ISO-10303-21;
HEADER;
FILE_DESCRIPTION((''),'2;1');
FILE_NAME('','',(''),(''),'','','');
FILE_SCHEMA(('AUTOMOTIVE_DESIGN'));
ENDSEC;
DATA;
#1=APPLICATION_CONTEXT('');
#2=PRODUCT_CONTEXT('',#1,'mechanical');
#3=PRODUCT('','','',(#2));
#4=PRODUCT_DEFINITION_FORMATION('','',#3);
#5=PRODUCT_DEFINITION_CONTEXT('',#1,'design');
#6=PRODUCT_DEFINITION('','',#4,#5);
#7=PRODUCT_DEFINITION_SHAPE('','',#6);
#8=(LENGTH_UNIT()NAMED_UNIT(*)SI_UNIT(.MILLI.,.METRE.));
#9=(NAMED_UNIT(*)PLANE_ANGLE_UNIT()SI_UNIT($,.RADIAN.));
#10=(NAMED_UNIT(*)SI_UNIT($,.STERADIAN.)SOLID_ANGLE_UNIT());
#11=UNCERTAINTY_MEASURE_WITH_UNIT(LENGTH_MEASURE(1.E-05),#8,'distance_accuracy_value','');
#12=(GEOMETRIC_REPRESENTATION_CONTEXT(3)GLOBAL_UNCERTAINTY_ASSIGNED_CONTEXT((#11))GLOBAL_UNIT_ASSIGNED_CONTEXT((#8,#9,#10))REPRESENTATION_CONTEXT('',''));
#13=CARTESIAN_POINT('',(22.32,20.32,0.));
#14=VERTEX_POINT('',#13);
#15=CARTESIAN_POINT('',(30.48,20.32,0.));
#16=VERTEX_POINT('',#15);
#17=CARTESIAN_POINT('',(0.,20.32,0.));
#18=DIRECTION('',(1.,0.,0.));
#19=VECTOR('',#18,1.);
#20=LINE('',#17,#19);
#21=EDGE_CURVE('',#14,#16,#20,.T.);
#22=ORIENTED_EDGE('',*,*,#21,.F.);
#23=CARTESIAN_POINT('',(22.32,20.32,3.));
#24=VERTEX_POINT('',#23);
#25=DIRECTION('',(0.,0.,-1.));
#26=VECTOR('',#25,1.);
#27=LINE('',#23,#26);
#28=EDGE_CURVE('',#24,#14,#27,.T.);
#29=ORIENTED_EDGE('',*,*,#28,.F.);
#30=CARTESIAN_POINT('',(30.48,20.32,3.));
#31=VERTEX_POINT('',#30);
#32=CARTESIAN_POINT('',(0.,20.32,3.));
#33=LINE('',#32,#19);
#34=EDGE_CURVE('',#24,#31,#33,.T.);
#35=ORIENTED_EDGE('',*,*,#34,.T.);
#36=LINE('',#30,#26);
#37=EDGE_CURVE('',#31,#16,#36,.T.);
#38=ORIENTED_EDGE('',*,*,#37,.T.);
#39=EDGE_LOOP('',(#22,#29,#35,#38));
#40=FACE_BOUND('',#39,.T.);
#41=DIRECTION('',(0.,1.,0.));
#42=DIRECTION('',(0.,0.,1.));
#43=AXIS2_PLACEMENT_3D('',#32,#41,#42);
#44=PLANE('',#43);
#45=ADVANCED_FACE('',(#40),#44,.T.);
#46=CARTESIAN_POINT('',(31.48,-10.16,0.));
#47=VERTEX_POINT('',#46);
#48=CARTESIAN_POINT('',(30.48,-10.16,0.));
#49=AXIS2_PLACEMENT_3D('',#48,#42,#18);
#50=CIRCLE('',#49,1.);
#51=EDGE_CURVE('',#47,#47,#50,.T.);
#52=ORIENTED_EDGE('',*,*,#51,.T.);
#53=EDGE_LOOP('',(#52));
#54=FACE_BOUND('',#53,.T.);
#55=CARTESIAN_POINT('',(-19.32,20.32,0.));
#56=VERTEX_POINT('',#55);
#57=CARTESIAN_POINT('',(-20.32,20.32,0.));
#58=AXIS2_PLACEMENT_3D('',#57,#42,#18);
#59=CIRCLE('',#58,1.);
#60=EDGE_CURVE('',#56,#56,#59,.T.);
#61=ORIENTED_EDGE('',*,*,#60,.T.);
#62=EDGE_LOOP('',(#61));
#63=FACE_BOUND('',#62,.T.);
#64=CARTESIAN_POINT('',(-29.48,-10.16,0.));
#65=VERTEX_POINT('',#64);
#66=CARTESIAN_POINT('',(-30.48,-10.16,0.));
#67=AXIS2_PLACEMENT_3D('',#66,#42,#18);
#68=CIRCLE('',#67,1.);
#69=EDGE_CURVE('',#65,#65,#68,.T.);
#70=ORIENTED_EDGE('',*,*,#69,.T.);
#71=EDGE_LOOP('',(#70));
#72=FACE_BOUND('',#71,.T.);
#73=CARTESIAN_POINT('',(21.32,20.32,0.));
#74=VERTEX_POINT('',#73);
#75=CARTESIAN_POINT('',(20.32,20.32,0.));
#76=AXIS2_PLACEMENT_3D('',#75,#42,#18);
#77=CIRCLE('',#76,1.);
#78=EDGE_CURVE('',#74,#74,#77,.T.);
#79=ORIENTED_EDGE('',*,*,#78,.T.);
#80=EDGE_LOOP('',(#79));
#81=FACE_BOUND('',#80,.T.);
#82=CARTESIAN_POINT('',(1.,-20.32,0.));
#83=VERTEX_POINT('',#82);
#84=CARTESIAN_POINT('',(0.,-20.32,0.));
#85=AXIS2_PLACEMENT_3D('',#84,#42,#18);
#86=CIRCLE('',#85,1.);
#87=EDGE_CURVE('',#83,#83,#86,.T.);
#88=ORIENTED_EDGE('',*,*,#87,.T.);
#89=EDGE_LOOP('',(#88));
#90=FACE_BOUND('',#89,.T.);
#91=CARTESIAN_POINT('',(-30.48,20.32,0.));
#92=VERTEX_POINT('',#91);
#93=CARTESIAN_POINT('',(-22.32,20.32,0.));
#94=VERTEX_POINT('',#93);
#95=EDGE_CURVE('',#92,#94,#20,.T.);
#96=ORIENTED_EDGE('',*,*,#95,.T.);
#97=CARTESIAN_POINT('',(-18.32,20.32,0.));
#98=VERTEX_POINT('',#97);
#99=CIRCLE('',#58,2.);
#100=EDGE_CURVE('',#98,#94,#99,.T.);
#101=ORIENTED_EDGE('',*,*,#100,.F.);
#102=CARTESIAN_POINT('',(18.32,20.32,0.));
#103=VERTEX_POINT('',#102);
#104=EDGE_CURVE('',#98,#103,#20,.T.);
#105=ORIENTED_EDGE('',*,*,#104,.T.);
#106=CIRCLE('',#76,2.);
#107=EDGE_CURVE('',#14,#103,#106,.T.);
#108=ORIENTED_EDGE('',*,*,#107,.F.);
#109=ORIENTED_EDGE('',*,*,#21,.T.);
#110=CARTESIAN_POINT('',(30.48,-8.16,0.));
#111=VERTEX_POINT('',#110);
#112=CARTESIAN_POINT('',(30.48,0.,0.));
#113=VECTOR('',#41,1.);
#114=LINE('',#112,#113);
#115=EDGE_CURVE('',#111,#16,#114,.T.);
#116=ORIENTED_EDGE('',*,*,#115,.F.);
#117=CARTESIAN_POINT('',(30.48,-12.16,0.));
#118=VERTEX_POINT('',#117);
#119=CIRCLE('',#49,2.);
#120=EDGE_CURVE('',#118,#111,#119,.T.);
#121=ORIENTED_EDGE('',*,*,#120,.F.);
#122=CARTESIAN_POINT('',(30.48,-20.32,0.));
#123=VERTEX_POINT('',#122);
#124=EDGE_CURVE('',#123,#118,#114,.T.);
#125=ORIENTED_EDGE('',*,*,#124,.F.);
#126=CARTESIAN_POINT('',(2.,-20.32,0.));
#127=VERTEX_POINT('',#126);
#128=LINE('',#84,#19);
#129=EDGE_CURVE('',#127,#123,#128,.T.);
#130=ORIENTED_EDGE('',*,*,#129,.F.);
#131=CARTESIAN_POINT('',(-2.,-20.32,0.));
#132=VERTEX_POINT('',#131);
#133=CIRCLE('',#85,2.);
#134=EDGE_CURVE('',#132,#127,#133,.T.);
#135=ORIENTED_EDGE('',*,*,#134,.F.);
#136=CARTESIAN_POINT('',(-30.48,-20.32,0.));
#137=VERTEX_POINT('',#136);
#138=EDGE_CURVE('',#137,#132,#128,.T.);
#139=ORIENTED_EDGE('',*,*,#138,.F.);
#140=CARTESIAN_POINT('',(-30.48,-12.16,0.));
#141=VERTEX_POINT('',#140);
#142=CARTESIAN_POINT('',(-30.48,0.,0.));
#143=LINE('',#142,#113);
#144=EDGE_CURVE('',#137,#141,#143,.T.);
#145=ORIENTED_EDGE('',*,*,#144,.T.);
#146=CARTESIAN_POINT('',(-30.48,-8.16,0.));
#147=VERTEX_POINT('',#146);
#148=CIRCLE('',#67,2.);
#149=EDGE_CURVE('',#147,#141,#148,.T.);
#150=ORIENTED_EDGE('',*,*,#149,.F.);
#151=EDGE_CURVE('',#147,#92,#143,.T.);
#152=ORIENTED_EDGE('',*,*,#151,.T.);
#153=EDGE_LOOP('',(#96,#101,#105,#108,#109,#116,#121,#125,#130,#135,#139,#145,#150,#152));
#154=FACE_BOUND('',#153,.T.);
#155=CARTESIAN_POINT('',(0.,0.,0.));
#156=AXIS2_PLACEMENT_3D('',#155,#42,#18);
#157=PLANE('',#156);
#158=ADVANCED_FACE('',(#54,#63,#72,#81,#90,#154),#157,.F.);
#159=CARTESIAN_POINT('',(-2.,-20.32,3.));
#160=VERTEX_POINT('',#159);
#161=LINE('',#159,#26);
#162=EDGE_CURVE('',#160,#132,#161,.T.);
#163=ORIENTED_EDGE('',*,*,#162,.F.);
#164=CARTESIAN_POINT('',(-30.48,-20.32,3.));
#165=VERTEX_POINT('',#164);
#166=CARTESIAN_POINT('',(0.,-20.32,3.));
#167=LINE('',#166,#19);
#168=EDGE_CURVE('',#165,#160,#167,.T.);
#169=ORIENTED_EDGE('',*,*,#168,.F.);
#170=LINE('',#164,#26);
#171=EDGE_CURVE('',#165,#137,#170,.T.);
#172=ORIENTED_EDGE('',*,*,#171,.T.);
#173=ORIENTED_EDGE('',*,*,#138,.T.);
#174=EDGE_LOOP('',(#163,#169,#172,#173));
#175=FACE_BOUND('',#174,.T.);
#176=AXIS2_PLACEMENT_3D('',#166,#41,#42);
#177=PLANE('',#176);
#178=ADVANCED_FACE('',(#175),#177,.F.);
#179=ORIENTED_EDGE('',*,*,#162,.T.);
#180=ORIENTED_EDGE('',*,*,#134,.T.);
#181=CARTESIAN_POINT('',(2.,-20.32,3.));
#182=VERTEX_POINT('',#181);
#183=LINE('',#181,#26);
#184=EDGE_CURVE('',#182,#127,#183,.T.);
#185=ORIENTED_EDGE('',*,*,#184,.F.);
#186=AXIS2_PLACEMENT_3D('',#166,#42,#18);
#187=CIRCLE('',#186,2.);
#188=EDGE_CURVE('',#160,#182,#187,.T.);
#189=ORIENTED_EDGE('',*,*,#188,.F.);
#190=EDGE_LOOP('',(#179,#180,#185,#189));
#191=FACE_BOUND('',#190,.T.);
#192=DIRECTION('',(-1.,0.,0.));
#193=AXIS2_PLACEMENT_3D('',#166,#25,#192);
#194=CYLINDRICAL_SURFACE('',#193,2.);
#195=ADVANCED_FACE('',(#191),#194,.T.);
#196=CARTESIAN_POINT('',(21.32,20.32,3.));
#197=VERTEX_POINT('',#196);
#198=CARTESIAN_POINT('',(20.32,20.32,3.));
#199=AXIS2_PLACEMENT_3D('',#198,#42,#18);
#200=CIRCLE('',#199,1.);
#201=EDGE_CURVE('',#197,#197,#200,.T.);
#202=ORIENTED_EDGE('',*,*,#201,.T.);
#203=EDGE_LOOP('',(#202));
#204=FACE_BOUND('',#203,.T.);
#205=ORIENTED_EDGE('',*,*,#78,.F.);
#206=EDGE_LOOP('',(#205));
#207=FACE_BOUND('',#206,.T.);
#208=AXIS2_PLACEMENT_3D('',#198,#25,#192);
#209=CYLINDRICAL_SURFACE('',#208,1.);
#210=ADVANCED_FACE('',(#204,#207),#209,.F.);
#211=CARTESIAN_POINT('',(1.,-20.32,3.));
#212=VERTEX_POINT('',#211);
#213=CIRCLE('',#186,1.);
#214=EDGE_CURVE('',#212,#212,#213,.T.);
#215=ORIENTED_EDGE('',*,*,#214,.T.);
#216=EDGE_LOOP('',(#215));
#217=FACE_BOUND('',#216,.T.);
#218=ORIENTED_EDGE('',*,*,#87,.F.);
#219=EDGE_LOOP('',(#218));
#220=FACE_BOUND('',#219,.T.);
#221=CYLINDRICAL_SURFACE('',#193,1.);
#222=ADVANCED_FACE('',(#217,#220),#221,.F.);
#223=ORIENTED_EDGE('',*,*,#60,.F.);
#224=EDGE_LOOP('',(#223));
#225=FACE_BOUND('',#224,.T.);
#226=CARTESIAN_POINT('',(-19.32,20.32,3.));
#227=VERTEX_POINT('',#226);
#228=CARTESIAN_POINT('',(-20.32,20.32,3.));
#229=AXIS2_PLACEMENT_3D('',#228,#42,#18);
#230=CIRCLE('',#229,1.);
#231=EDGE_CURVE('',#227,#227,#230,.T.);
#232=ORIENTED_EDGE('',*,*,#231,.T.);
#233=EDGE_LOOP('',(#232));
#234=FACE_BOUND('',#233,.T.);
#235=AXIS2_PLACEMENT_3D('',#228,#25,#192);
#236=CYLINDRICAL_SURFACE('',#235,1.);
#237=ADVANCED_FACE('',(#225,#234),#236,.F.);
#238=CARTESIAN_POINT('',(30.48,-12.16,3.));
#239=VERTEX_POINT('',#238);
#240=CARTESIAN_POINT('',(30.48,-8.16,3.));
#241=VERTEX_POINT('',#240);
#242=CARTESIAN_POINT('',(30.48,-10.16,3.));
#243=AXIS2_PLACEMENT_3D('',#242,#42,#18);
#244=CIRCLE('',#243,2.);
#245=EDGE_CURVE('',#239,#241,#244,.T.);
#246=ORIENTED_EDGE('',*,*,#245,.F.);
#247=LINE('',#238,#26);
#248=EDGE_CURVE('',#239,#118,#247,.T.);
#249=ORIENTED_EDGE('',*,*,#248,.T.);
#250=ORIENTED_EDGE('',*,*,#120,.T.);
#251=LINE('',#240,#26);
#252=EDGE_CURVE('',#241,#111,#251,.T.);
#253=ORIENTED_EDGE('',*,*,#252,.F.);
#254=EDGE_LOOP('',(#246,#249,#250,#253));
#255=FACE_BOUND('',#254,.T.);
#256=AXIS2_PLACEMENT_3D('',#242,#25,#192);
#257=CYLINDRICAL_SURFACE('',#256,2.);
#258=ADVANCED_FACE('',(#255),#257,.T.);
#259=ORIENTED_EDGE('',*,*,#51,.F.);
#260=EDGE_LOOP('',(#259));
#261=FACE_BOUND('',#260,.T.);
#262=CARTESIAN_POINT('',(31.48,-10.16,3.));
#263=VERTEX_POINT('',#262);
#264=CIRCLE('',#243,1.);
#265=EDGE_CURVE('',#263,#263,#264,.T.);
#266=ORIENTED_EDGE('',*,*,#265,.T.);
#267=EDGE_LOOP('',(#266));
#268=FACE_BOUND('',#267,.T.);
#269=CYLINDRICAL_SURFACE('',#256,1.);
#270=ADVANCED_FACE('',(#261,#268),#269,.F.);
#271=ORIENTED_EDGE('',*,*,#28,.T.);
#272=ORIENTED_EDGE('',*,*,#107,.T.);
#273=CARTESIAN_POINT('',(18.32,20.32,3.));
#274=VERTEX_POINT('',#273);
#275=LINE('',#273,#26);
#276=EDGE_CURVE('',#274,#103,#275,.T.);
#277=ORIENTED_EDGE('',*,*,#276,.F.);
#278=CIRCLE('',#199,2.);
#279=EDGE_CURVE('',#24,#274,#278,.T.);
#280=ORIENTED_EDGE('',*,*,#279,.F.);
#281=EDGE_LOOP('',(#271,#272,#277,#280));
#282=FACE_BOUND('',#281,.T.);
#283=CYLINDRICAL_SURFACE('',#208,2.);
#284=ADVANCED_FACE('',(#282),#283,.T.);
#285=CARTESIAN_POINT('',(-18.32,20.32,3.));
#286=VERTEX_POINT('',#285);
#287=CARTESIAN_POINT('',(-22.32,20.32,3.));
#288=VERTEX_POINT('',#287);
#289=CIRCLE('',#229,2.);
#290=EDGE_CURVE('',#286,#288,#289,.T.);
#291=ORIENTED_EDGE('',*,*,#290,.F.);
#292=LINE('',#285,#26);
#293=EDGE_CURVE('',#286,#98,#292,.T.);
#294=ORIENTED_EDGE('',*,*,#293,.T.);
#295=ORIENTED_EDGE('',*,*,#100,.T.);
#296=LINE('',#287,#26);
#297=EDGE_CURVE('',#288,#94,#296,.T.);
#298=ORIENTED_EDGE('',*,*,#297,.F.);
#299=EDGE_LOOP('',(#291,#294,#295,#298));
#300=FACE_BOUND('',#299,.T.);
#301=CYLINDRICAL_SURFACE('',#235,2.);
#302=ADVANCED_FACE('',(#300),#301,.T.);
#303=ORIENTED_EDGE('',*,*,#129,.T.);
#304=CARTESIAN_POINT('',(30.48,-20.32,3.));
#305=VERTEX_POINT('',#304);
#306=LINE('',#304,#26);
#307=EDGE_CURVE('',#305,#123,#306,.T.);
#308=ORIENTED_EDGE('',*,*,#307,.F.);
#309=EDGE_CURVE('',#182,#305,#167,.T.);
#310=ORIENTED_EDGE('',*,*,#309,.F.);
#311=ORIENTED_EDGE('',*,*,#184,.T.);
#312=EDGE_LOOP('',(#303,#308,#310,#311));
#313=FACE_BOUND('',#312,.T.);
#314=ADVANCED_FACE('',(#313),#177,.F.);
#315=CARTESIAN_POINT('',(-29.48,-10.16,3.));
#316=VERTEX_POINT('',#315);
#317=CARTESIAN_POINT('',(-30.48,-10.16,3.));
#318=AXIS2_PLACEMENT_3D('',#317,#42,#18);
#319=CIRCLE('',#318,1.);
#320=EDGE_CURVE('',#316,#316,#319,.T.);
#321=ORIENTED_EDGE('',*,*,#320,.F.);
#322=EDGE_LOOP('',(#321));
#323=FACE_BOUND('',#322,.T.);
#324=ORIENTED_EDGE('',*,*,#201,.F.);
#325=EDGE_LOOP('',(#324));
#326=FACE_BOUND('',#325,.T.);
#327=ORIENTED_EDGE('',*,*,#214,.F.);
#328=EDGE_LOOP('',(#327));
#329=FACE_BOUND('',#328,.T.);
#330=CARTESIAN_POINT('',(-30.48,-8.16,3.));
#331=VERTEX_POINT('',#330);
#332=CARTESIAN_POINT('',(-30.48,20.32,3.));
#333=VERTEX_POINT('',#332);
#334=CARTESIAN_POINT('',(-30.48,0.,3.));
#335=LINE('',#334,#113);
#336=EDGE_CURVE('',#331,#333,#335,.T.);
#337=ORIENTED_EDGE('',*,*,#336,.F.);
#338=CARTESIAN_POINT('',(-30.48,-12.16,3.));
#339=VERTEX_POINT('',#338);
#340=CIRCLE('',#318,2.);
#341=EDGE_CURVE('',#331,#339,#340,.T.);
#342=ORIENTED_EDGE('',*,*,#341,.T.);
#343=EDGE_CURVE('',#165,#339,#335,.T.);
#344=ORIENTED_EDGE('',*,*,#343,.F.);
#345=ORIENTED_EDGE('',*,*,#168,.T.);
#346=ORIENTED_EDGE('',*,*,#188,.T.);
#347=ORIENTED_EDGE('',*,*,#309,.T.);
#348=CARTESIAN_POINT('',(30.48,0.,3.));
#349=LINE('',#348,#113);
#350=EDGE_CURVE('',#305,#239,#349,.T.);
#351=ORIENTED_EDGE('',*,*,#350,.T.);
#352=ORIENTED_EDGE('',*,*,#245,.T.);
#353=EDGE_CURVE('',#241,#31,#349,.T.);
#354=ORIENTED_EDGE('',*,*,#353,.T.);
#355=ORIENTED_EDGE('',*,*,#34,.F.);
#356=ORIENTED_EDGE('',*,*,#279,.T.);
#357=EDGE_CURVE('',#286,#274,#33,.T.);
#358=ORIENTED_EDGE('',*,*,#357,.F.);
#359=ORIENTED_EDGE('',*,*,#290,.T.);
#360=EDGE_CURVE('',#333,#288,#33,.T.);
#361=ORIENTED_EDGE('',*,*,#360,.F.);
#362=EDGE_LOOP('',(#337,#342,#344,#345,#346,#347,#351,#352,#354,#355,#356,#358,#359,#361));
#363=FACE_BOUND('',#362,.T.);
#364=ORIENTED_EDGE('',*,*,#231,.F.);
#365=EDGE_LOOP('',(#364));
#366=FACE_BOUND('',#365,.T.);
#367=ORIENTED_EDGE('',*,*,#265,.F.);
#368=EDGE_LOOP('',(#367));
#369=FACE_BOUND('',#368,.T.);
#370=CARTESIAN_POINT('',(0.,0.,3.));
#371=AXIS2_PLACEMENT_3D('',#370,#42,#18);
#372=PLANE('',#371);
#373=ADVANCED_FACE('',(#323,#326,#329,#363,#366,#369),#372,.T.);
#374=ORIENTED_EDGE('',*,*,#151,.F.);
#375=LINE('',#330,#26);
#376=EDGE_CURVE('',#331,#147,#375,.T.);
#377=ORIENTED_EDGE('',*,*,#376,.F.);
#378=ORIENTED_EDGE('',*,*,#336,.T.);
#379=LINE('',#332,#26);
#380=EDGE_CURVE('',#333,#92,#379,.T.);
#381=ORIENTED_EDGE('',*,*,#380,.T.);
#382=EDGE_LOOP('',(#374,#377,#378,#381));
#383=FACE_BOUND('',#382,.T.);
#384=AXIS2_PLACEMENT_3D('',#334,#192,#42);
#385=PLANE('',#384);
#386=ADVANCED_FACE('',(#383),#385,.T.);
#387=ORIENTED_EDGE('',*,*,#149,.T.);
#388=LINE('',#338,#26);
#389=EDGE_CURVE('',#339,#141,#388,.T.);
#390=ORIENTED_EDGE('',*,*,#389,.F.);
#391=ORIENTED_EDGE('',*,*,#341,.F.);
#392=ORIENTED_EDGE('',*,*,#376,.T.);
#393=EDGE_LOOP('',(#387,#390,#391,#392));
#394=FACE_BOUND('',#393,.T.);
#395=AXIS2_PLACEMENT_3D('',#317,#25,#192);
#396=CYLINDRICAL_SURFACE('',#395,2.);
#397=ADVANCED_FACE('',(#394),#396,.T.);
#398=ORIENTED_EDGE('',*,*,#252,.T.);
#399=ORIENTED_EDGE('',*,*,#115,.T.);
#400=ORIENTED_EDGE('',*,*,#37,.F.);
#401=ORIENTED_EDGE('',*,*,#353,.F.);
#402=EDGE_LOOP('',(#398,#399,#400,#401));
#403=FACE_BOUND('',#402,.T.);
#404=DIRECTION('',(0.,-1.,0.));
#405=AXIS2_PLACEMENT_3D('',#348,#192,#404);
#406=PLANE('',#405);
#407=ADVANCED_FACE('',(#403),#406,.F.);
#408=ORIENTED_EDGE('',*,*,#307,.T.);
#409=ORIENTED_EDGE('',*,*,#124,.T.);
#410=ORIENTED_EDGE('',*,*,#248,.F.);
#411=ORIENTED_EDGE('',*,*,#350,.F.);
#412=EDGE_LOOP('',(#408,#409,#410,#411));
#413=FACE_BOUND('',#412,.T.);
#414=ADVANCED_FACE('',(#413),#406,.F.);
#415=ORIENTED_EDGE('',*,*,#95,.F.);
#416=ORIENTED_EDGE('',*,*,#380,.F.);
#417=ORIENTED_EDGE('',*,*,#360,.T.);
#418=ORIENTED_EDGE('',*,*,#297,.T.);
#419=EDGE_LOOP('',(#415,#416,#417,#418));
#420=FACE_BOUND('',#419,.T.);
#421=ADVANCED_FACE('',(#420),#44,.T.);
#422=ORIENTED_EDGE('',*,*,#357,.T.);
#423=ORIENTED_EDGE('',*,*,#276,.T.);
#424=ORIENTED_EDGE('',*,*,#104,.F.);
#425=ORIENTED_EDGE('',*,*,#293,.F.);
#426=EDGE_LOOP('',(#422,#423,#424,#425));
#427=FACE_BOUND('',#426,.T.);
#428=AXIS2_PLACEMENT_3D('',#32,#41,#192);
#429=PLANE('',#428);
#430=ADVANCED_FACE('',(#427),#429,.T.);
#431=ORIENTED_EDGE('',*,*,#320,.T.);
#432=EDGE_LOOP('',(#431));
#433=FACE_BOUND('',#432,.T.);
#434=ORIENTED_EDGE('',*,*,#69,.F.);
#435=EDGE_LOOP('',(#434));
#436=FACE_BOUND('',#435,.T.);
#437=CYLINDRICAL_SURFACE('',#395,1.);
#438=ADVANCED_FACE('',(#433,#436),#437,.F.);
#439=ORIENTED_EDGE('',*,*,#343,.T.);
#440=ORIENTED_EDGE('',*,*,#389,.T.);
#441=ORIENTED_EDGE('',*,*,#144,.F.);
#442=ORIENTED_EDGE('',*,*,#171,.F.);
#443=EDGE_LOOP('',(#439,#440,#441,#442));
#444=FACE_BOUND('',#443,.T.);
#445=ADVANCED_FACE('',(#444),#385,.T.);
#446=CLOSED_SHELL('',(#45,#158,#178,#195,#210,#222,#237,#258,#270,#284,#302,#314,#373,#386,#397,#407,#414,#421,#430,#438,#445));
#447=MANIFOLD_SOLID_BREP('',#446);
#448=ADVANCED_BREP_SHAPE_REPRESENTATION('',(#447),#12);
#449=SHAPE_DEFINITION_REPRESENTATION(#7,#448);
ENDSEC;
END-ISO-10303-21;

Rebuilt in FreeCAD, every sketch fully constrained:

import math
import FreeCAD as App
import Part
import Sketcher
from FreeCAD import Vector
Q = App.Units.Quantity

doc = App.newDocument("Part")
body = doc.addObject("PartDesign::Body", "Body")

# Sketch on XY plane
sketch1 = body.newObject("Sketcher::SketchObject", "Sketch")
sketch1.AttachmentSupport = (doc.getObject("XY_Plane"), [""])
sketch1.MapMode = "FlatFace"
sketch1.addGeometry(Part.LineSegment(Vector(30.5, -20.3, 0), Vector(30.5, -12.2, 0)), False)
sketch1.addGeometry(Part.ArcOfCircle(Part.Circle(Vector(30.5, -10.2, 0), Vector(0, 0, 1), 2), math.radians(-90), math.radians(90)), False)
sketch1.addGeometry(Part.LineSegment(Vector(30.5, -8.2, 0), Vector(30.5, 20.3, 0)), False)
sketch1.addGeometry(Part.LineSegment(Vector(30.5, 20.3, 0), Vector(22.3, 20.3, 0)), False)
sketch1.addGeometry(Part.ArcOfCircle(Part.Circle(Vector(20.3, 20.3, 0), Vector(0, 0, 1), 2), math.radians(0), math.radians(180)), False)
sketch1.addGeometry(Part.LineSegment(Vector(18.3, 20.3, 0), Vector(-18.3, 20.3, 0)), False)
sketch1.addGeometry(Part.ArcOfCircle(Part.Circle(Vector(-20.3, 20.3, 0), Vector(0, 0, 1), 2), math.radians(0), math.radians(180)), False)
sketch1.addGeometry(Part.LineSegment(Vector(-22.3, 20.3, 0), Vector(-30.5, 20.3, 0)), False)
sketch1.addGeometry(Part.LineSegment(Vector(-30.5, 20.3, 0), Vector(-30.5, -8.2, 0)), False)
sketch1.addGeometry(Part.ArcOfCircle(Part.Circle(Vector(-30.5, -10.2, 0), Vector(0, 0, 1), 2), math.radians(90), math.radians(270)), False)
sketch1.addGeometry(Part.LineSegment(Vector(-30.5, -12.2, 0), Vector(-30.5, -20.3, 0)), False)
sketch1.addGeometry(Part.LineSegment(Vector(-30.5, -20.3, 0), Vector(-2, -20.3, 0)), False)
sketch1.addGeometry(Part.ArcOfCircle(Part.Circle(Vector(0, -20.3, 0), Vector(0, 0, 1), 2), math.radians(180), math.radians(360)), False)
sketch1.addGeometry(Part.LineSegment(Vector(2, -20.3, 0), Vector(30.5, -20.3, 0)), False)
sketch1.addGeometry(Part.Circle(Vector(-30.5, -10.2, 0), Vector(0, 0, 1), 1), False)
sketch1.addGeometry(Part.Circle(Vector(0, -20.3, 0), Vector(0, 0, 1), 1), False)
sketch1.addGeometry(Part.Circle(Vector(30.5, -10.2, 0), Vector(0, 0, 1), 1), False)
sketch1.addGeometry(Part.Circle(Vector(-20.3, 20.3, 0), Vector(0, 0, 1), 1), False)
sketch1.addGeometry(Part.Circle(Vector(20.3, 20.3, 0), Vector(0, 0, 1), 1), False)
sketch1.addConstraint(Sketcher.Constraint("Coincident", 0, 2, 1, 1))
sketch1.addConstraint(Sketcher.Constraint("Coincident", 1, 2, 2, 1))
sketch1.addConstraint(Sketcher.Constraint("Coincident", 2, 2, 3, 1))
sketch1.addConstraint(Sketcher.Constraint("Coincident", 3, 2, 4, 1))
sketch1.addConstraint(Sketcher.Constraint("Coincident", 4, 2, 5, 1))
sketch1.addConstraint(Sketcher.Constraint("Coincident", 5, 2, 6, 1))
sketch1.addConstraint(Sketcher.Constraint("Coincident", 6, 2, 7, 1))
sketch1.addConstraint(Sketcher.Constraint("Coincident", 7, 2, 8, 1))
sketch1.addConstraint(Sketcher.Constraint("Coincident", 8, 2, 9, 1))
sketch1.addConstraint(Sketcher.Constraint("Coincident", 9, 2, 10, 1))
sketch1.addConstraint(Sketcher.Constraint("Coincident", 10, 2, 11, 1))
sketch1.addConstraint(Sketcher.Constraint("Coincident", 11, 2, 12, 1))
sketch1.addConstraint(Sketcher.Constraint("Coincident", 12, 2, 13, 1))
sketch1.addConstraint(Sketcher.Constraint("Coincident", 13, 2, 0, 1))
sketch1.addConstraint(Sketcher.Constraint("Vertical", 0))
sketch1.addConstraint(Sketcher.Constraint("Vertical", 2))
sketch1.addConstraint(Sketcher.Constraint("Horizontal", 3))
sketch1.addConstraint(Sketcher.Constraint("Horizontal", 5))
sketch1.addConstraint(Sketcher.Constraint("Horizontal", 7))
sketch1.addConstraint(Sketcher.Constraint("Vertical", 8))
sketch1.addConstraint(Sketcher.Constraint("Vertical", 10))
sketch1.addConstraint(Sketcher.Constraint("Horizontal", 11))
sketch1.addConstraint(Sketcher.Constraint("Horizontal", 13))
sketch1.addConstraint(Sketcher.Constraint("Coincident", 14, 3, 9, 3))
sketch1.addConstraint(Sketcher.Constraint("Coincident", 15, 3, 12, 3))
sketch1.addConstraint(Sketcher.Constraint("Coincident", 16, 3, 1, 3))
sketch1.addConstraint(Sketcher.Constraint("Coincident", 17, 3, 6, 3))
sketch1.addConstraint(Sketcher.Constraint("Coincident", 18, 3, 4, 3))
sketch1.addConstraint(Sketcher.Constraint("Equal", 1, 4))
sketch1.addConstraint(Sketcher.Constraint("Equal", 4, 6))
sketch1.addConstraint(Sketcher.Constraint("Equal", 6, 9))
sketch1.addConstraint(Sketcher.Constraint("Equal", 9, 12))
sketch1.addConstraint(Sketcher.Constraint("Equal", 14, 15))
sketch1.addConstraint(Sketcher.Constraint("Equal", 15, 16))
sketch1.addConstraint(Sketcher.Constraint("Equal", 16, 17))
sketch1.addConstraint(Sketcher.Constraint("Equal", 17, 18))
sketch1.addConstraint(Sketcher.Constraint("Symmetric", 2, 2, 10, 2, -1, 1))
sketch1.addConstraint(Sketcher.Constraint("Symmetric", 7, 2, 13, 2, -1, 1))
sketch1.addConstraint(Sketcher.Constraint("Symmetric", 4, 3, 6, 3, -2))
sketch1.addConstraint(Sketcher.Constraint("Symmetric", 1, 3, 9, 3, -2))
sketch1.addConstraint(Sketcher.Constraint("Symmetric", 2, 2, 7, 2, -2))
sketch1.addConstraint(Sketcher.Constraint("PointOnObject", 12, 3, -2))
sketch1.addConstraint(Sketcher.Constraint("Horizontal", 18, 3, 2, 2))
sketch1.addConstraint(Sketcher.Constraint("Horizontal", 3, 2, 4, 2))
sketch1.addConstraint(Sketcher.Constraint("Horizontal", 15, 3, 10, 2))
sketch1.addConstraint(Sketcher.Constraint("Vertical", 16, 3, 0, 2))
sketch1.addConstraint(Sketcher.Constraint("Equal", 7, 0))
sketch1.addConstraint(Sketcher.Constraint("Equal", 13, 2))
sketch1.addConstraint(Sketcher.Constraint("Diameter", 14, Q("2 mm")))
sketch1.addConstraint(Sketcher.Constraint("Radius", 1, Q("2 mm")))
sketch1.addConstraint(Sketcher.Constraint("DistanceX", 3, 2, 3, 1, Q("8.16 mm")))
sketch1.addConstraint(Sketcher.Constraint("DistanceX", 5, 2, 5, 1, Q("36.64 mm")))
pad1 = body.newObject("PartDesign::Pad", "Pad")
pad1.Profile = sketch1
pad1.Length = 3

doc.recompute()
